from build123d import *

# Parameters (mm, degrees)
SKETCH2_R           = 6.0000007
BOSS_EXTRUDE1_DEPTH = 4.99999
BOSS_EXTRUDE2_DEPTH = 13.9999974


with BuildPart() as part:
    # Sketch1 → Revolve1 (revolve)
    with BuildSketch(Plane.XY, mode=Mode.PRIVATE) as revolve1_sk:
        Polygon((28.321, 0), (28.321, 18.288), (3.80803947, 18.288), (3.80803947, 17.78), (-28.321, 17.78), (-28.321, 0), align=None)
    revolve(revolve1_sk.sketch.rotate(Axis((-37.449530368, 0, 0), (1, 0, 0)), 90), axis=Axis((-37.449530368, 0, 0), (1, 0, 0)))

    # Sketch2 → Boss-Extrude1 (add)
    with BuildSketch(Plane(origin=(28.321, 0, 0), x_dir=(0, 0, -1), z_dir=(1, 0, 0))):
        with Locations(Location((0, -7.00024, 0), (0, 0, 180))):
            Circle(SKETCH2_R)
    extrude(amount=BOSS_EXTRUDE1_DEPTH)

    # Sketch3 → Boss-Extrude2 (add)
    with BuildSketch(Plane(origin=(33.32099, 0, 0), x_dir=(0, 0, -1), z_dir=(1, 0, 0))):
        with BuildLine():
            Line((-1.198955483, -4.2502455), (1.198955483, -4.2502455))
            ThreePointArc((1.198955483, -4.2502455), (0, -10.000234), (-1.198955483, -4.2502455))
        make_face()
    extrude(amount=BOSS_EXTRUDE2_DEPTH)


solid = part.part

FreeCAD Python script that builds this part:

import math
import FreeCAD as App
import Part
import Sketcher

V = App.Vector
Q = App.Units.Quantity


def add_polygon(sketch, points):
    """Adds a closed chain of lines whose ends are joined by coincident constraints."""
    first, n = sketch.GeometryCount, len(points)
    for a, b in zip(points, points[1:] + points[:1]):
        sketch.addGeometry(Part.LineSegment(App.Vector(*a, 0), App.Vector(*b, 0)), False)
    for i in range(n):
        sketch.addConstraint(Sketcher.Constraint("Coincident", first + i, 2, first + (i + 1) % n, 1))

doc = App.newDocument("Part")
params = doc.addObject("Spreadsheet::Sheet", "Params")
for row, (alias, value) in enumerate([
    ("sketch1_height", "0.7 in"),
    ("sketch1_width", "2.23 in"),
    ("sketch1_height2", "0.72 in"),
    ("revolution_angle", "360 deg"),
    ("pad1_length", "4.99999 mm"),
    ("pad2_length", "13.999997 mm"),
], start=1):
    params.set(f"A{row}", alias)
    params.set(f"B{row}", "=" + value)
    params.setAlias(f"B{row}", alias)

body = doc.addObject("PartDesign::Body", "Body")

# Sketch on XY plane
sketch1 = body.newObject("Sketcher::SketchObject", "Sketch")
sketch1.AttachmentSupport = (doc.getObject("XY_Plane"), [""])
sketch1.MapMode = "FlatFace"
add_polygon(sketch1, [(28.321, 0), (28.321, 18.288), (3.808039, 18.288), (3.808039, 17.78), (-28.321, 17.78), (-28.321, 0)])  # lines 0-5
sketch1.addConstraint([
    Sketcher.Constraint("Vertical", 0),
    Sketcher.Constraint("Horizontal", 1),
    Sketcher.Constraint("Vertical", 2),
    Sketcher.Constraint("Horizontal", 3),
    Sketcher.Constraint("Vertical", 4),
    Sketcher.Constraint("Horizontal", 5),
    Sketcher.Constraint("Symmetric", 4, 2, 5, 2, -1, 1),
    Sketcher.Constraint("DistanceY", 4, 2, 4, 1, Q("0.7 in")),
    Sketcher.Constraint("DistanceX", 5, 1, 5, 2, Q("2.23 in")),
    Sketcher.Constraint("DistanceY", 0, 1, 0, 2, Q("0.72 in")),
    Sketcher.Constraint("DistanceX", 1, 2, 1, 1, Q("24.512961 mm")),
])
sketch1.setExpression("Constraints[13]", "Params.sketch1_height")
sketch1.setExpression("Constraints[14]", "Params.sketch1_width")
sketch1.setExpression("Constraints[15]", "Params.sketch1_height2")
revolution = body.newObject("PartDesign::Revolution", "Revolution")
revolution.Profile = sketch1
revolution.ReferenceAxis = (sketch1, ["H_Axis"])
revolution.setExpression("Angle", "Params.revolution_angle")

# Sketch on YZ plane
sketch2 = body.newObject("Sketcher::SketchObject", "Sketch001")
sketch2.AttachmentSupport = (doc.getObject("YZ_Plane"), [""])
sketch2.MapMode = "FlatFace"
sketch2.AttachmentOffset = App.Placement(V(0, 0, 1.115 * 25.4), App.Rotation())
sketch2.addGeometry(Part.Circle(V(-7.00024, 0, 0), V(0, 0, 1), 6.000001), False)
sketch2.addConstraint([
    Sketcher.Constraint("PointOnObject", 0, 3, -1),
    Sketcher.Constraint("Diameter", 0, Q("12.000001 mm")),
    Sketcher.Constraint("DistanceX", 0, 3, -1, 1, Q("0.2756 in")),
])
pad1 = body.newObject("PartDesign::Pad", "Pad")
pad1.Profile = sketch2
pad1.setExpression("Length", "Params.pad1_length")

# Sketch on YZ plane
sketch3 = body.newObject("Sketcher::SketchObject", "Sketch002")
sketch3.AttachmentSupport = (doc.getObject("YZ_Plane"), [""])
sketch3.MapMode = "FlatFace"
sketch3.AttachmentOffset = App.Placement(V(0, 0, 33.32099), App.Rotation())
sketch3.addGeometry([
    Part.LineSegment(V(-4.250246, -1.198955, 0), V(-4.250246, 1.198955, 0)),
    Part.ArcOfCircle(Part.Circle(V(-7.00024, 0, 0), V(0, 0, 1), 2.999994), math.radians(23.556464), math.radians(336.443536)),
], False)
sketch3.addConstraint([
    Sketcher.Constraint("Coincident", 0, 1, 1, 2),
    Sketcher.Constraint("Coincident", 1, 1, 0, 2),
    Sketcher.Constraint("Vertical", 0),
    Sketcher.Constraint("PointOnObject", 1, 3, -1),
    Sketcher.Constraint("DistanceX", 1, 3, -1, 1, Q("0.2756 in")),
    Sketcher.Constraint("Radius", 1, Q("2.999994 mm")),
    Sketcher.Constraint("DistanceY", 0, 1, 0, 2, Q("2.397911 mm")),
])
pad2 = body.newObject("PartDesign::Pad", "Pad001")
pad2.Profile = sketch3
pad2.setExpression("Length", "Params.pad2_length")

doc.recompute()
